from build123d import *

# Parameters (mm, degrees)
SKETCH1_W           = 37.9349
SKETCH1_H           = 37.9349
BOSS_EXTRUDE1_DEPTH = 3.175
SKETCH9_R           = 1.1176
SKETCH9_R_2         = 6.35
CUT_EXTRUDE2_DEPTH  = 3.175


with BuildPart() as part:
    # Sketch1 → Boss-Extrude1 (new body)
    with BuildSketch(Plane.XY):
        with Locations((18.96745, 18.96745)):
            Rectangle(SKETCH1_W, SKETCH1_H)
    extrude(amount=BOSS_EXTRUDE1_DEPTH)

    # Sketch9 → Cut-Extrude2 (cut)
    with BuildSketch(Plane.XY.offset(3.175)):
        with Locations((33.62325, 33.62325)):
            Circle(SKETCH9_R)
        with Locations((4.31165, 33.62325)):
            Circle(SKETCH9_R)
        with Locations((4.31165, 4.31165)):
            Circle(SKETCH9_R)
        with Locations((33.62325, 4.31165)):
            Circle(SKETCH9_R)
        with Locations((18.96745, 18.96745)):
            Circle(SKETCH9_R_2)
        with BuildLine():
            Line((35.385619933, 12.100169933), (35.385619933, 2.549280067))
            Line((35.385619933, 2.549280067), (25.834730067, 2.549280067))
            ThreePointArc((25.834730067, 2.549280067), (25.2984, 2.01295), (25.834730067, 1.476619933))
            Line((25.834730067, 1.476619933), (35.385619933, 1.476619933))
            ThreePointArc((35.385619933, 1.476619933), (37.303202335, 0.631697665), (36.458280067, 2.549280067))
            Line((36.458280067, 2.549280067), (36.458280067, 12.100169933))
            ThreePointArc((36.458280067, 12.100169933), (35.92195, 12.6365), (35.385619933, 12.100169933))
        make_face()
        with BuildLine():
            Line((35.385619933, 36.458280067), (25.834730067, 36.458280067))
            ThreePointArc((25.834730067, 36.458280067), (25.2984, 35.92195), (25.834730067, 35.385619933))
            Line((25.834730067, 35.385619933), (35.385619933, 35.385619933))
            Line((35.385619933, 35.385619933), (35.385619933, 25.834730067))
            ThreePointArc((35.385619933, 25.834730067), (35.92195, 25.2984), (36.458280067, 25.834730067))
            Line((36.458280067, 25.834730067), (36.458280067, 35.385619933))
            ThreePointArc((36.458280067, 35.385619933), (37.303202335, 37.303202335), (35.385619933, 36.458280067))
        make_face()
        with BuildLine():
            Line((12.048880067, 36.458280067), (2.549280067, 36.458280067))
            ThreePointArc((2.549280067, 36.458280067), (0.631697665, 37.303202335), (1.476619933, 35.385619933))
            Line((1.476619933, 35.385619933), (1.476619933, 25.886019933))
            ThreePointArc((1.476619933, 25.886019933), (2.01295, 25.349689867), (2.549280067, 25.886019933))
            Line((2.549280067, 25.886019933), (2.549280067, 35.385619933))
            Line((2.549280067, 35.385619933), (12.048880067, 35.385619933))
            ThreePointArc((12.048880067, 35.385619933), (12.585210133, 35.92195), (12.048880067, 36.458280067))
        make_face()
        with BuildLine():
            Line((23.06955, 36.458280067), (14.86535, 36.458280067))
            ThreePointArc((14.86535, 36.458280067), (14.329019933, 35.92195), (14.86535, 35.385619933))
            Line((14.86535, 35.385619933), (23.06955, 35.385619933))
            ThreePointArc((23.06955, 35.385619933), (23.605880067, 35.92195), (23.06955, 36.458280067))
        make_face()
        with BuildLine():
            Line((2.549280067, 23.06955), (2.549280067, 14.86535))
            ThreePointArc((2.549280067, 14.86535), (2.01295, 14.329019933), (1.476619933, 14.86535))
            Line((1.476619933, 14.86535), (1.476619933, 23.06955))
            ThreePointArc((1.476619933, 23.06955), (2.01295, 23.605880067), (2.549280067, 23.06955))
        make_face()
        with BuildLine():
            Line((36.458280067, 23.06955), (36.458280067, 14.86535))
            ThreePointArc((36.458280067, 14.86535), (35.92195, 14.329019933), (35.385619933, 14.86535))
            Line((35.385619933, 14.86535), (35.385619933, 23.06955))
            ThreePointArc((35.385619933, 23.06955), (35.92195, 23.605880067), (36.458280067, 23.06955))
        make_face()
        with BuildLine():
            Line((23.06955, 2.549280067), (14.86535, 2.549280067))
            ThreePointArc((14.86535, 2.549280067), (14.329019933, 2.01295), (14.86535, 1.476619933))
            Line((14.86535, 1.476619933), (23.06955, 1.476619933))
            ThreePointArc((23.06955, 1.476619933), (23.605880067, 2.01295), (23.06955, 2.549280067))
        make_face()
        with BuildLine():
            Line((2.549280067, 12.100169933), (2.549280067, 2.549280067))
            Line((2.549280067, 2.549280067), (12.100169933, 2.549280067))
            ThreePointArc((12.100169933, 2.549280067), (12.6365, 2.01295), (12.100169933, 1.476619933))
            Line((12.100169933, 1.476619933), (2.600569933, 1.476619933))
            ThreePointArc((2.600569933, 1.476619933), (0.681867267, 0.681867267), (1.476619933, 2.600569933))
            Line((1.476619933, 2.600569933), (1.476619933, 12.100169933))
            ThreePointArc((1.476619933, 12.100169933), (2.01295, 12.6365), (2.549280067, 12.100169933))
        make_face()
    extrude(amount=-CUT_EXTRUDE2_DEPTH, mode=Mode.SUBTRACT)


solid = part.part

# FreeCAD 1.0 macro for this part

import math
import FreeCAD as App
import Part
import Sketcher

V = App.Vector
Q = App.Units.Quantity

doc = App.newDocument("Part")
body = doc.addObject("PartDesign::Body", "Body")

sketch1 = body.newObject("Sketcher::SketchObject", "Sketch")
sketch1.AttachmentSupport = (doc.getObject("XY_Plane"), [""])
sketch1.MapMode = "FlatFace"
sketch1.addGeometry([
    Part.LineSegment(V(0, 38, 0), V(0, 0, 0)),
    Part.LineSegment(V(0, 0, 0), V(38, 0, 0)),
    Part.LineSegment(V(38, 0, 0), V(38, 38, 0)),
    Part.LineSegment(V(38, 38, 0), V(0, 38, 0)),
], False)
sketch1.addConstraint([
    Sketcher.Constraint("Coincident", 0, 2, 1, 1),
    Sketcher.Constraint("Coincident", 1, 2, 2, 1),
    Sketcher.Constraint("Coincident", 2, 2, 3, 1),
    Sketcher.Constraint("Coincident", 3, 2, 0, 1),
    Sketcher.Constraint("Vertical", 0),
    Sketcher.Constraint("Horizontal", 1),
    Sketcher.Constraint("Vertical", 2),
    Sketcher.Constraint("Horizontal", 3),
    Sketcher.Constraint("Coincident", 0, 2, -1, 1),
    Sketcher.Constraint("Equal", 3, 0),
    Sketcher.Constraint("DistanceX", 1, 1, 1, 2, Q("1.4935 in")),
])
pad1 = body.newObject("PartDesign::Pad", "Pad")
pad1.Profile = sketch1
pad1.Length = Q("0.125 in")

sketch2 = body.newObject("Sketcher::SketchObject", "Sketch001")
sketch2.AttachmentSupport = (doc.getObject("XY_Plane"), [""])
sketch2.MapMode = "FlatFace"
sketch2.AttachmentOffset = App.Placement(V(0, 0, 0.125 * 25.4), App.Rotation())
sketch2.addGeometry([
    Part.Circle(V(33.6, 33.6, 0), V(0, 0, 1), 1.1),
    Part.Circle(V(4.3, 33.6, 0), V(0, 0, 1), 1.1),
    Part.Circle(V(4.3, 4.3, 0), V(0, 0, 1), 1.1),
    Part.Circle(V(33.6, 4.3, 0), V(0, 0, 1), 1.1),
    Part.Circle(V(19, 19, 0), V(0, 0, 1), 6.3),
    Part.LineSegment(V(35.4, 12.1, 0), V(35.4, 2.5, 0)),
    Part.LineSegment(V(35.4, 2.5, 0), V(25.8, 2.5, 0)),
    Part.ArcOfCircle(Part.Circle(V(25.8, 2, 0), V(0, 0, 1), 0.5), math.radians(90), math.radians(270)),
    Part.LineSegment(V(25.8, 1.5, 0), V(35.4, 1.5, 0)),
    Part.ArcOfCircle(Part.Circle(V(36.5, 1.4, 0), V(0, 0, 1), 1.1), math.radians(177), math.radians(453)),
    Part.LineSegment(V(36.5, 2.5, 0), V(36.5, 12.1, 0)),
    Part.ArcOfCircle(Part.Circle(V(35.9, 12.1, 0), V(0, 0, 1), 0.5), math.radians(0), math.radians(180)),
    Part.LineSegment(V(35.4, 36.5, 0), V(25.8, 36.5, 0)),
    Part.ArcOfCircle(Part.Circle(V(25.8, 35.9, 0), V(0, 0, 1), 0.5), math.radians(90), math.radians(270)),
    Part.LineSegment(V(25.8, 35.4, 0), V(35.4, 35.4, 0)),
    Part.LineSegment(V(35.4, 35.4, 0), V(35.4, 25.8, 0)),
    Part.ArcOfCircle(Part.Circle(V(35.9, 25.8, 0), V(0, 0, 1), 0.5), math.radians(180), math.radians(360)),
    Part.LineSegment(V(36.5, 25.8, 0), V(36.5, 35.4, 0)),
    Part.ArcOfCircle(Part.Circle(V(36.5, 36.5, 0), V(0, 0, 1), 1.1), math.radians(-93), math.radians(183)),
    Part.LineSegment(V(12, 36.5, 0), V(2.5, 36.5, 0)),
    Part.ArcOfCircle(Part.Circle(V(1.4, 36.5, 0), V(0, 0, 1), 1.1), math.radians(-3), math.radians(273)),
    Part.LineSegment(V(1.5, 35.4, 0), V(1.5, 25.9, 0)),
    Part.ArcOfCircle(Part.Circle(V(2, 25.9, 0), V(0, 0, 1), 0.5), math.radians(-180), math.radians(0)),
    Part.LineSegment(V(2.5, 25.9, 0), V(2.5, 35.4, 0)),
    Part.LineSegment(V(2.5, 35.4, 0), V(12, 35.4, 0)),
    Part.ArcOfCircle(Part.Circle(V(12, 35.9, 0), V(0, 0, 1), 0.5), math.radians(-90), math.radians(90)),
    Part.LineSegment(V(23.1, 36.5, 0), V(14.9, 36.5, 0)),
    Part.ArcOfCircle(Part.Circle(V(14.9, 35.9, 0), V(0, 0, 1), 0.5), math.radians(90), math.radians(270)),
    Part.LineSegment(V(14.9, 35.4, 0), V(23.1, 35.4, 0)),
    Part.ArcOfCircle(Part.Circle(V(23.1, 35.9, 0), V(0, 0, 1), 0.5), math.radians(-90), math.radians(90)),
    Part.LineSegment(V(2.5, 14.9, 0), V(2.5, 23.1, 0)),
    Part.ArcOfCircle(Part.Circle(V(2, 23.1, 0), V(0, 0, 1), 0.5), math.radians(0), math.radians(180)),
    Part.LineSegment(V(1.5, 23.1, 0), V(1.5, 14.9, 0)),
    Part.ArcOfCircle(Part.Circle(V(2, 14.9, 0), V(0, 0, 1), 0.5), math.radians(180), math.radians(360)),
    Part.LineSegment(V(36.5, 14.9, 0), V(36.5, 23.1, 0)),
    Part.ArcOfCircle(Part.Circle(V(35.9, 23.1, 0), V(0, 0, 1), 0.5), math.radians(0), math.radians(180)),
    Part.LineSegment(V(35.4, 23.1, 0), V(35.4, 14.9, 0)),
    Part.ArcOfCircle(Part.Circle(V(35.9, 14.9, 0), V(0, 0, 1), 0.5), math.radians(180), math.radians(360)),
    Part.LineSegment(V(23.1, 2.5, 0), V(14.9, 2.5, 0)),
    Part.ArcOfCircle(Part.Circle(V(14.9, 2, 0), V(0, 0, 1), 0.5), math.radians(90), math.radians(270)),
    Part.LineSegment(V(14.9, 1.5, 0), V(23.1, 1.5, 0)),
    Part.ArcOfCircle(Part.Circle(V(23.1, 2, 0), V(0, 0, 1), 0.5), math.radians(-90), math.radians(90)),
    Part.LineSegment(V(2.5, 2.5, 0), V(2.5, 12.1, 0)),
    Part.ArcOfCircle(Part.Circle(V(2, 12.1, 0), V(0, 0, 1), 0.5), math.radians(0), math.radians(180)),
    Part.LineSegment(V(1.5, 12.1, 0), V(1.5, 2.6, 0)),
    Part.ArcOfCircle(Part.Circle(V(1.5, 1.5, 0), V(0, 0, 1), 1.1), math.radians(90), math.radians(360)),
    Part.LineSegment(V(2.6, 1.5, 0), V(12.1, 1.5, 0)),
    Part.ArcOfCircle(Part.Circle(V(12.1, 2, 0), V(0, 0, 1), 0.5), math.radians(-90), math.radians(90)),
    Part.LineSegment(V(12.1, 2.5, 0), V(2.5, 2.5, 0)),
], False)
sketch2.addConstraint([
    Sketcher.Constraint("Coincident", 5, 2, 6, 1),
    Sketcher.Constraint("Tangent", 6, 2, 7, 1),
    Sketcher.Constraint("Tangent", 7, 2, 8, 1),
    Sketcher.Constraint("Coincident", 8, 2, 9, 1),
    Sketcher.Constraint("Coincident", 9, 2, 10, 1),
    Sketcher.Constraint("Tangent", 10, 2, 11, 1),
    Sketcher.Constraint("Tangent", 11, 2, 5, 1),
    Sketcher.Constraint("Tangent", 12, 2, 13, 1),
    Sketcher.Constraint("Tangent", 13, 2, 14, 1),
    Sketcher.Constraint("Coincident", 14, 2, 15, 1),
    Sketcher.Constraint("Tangent", 15, 2, 16, 1),
    Sketcher.Constraint("Tangent", 16, 2, 17, 1),
    Sketcher.Constraint("Coincident", 17, 2, 18, 1),
    Sketcher.Constraint("Coincident", 18, 2, 12, 1),
    Sketcher.Constraint("Coincident", 19, 2, 20, 1),
    Sketcher.Constraint("Coincident", 20, 2, 21, 1),
    Sketcher.Constraint("Tangent", 21, 2, 22, 1),
    Sketcher.Constraint("Tangent", 22, 2, 23, 1),
    Sketcher.Constraint("Coincident", 23, 2, 24, 1),
    Sketcher.Constraint("Tangent", 24, 2, 25, 1),
    Sketcher.Constraint("Tangent", 25, 2, 19, 1),
    Sketcher.Constraint("Tangent", 26, 2, 27, 1),
    Sketcher.Constraint("Tangent", 27, 2, 28, 1),
    Sketcher.Constraint("Tangent", 28, 2, 29, 1),
    Sketcher.Constraint("Tangent", 29, 2, 26, 1),
    Sketcher.Constraint("Tangent", 30, 2, 31, 1),
    Sketcher.Constraint("Tangent", 31, 2, 32, 1),
    Sketcher.Constraint("Tangent", 32, 2, 33, 1),
    Sketcher.Constraint("Tangent", 33, 2, 30, 1),
    Sketcher.Constraint("Tangent", 34, 2, 35, 1),
    Sketcher.Constraint("Tangent", 35, 2, 36, 1),
    Sketcher.Constraint("Tangent", 36, 2, 37, 1),
    Sketcher.Constraint("Tangent", 37, 2, 34, 1),
    Sketcher.Constraint("Tangent", 38, 2, 39, 1),
    Sketcher.Constraint("Tangent", 39, 2, 40, 1),
    Sketcher.Constraint("Tangent", 40, 2, 41, 1),
    Sketcher.Constraint("Tangent", 41, 2, 38, 1),
    Sketcher.Constraint("Tangent", 42, 2, 43, 1),
    Sketcher.Constraint("Tangent", 43, 2, 44, 1),
    Sketcher.Constraint("Coincident", 44, 2, 45, 1),
    Sketcher.Constraint("Coincident", 45, 2, 46, 1),
    Sketcher.Constraint("Tangent", 46, 2, 47, 1),
    Sketcher.Constraint("Tangent", 47, 2, 48, 1),
    Sketcher.Constraint("Coincident", 48, 2, 42, 1),
    Sketcher.Constraint("Vertical", 5),
    Sketcher.Constraint("Horizontal", 6),
    Sketcher.Constraint("Horizontal", 8),
    Sketcher.Constraint("Vertical", 10),
    Sketcher.Constraint("Horizontal", 12),
    Sketcher.Constraint("Horizontal", 14),
    Sketcher.Constraint("Vertical", 15),
    Sketcher.Constraint("Vertical", 17),
    Sketcher.Constraint("Horizontal", 19),
    Sketcher.Constraint("Vertical", 21),
    Sketcher.Constraint("Vertical", 23),
    Sketcher.Constraint("Horizontal", 24),
    Sketcher.Constraint("Horizontal", 26),
    Sketcher.Constraint("Horizontal", 28),
    Sketcher.Constraint("Vertical", 30),
    Sketcher.Constraint("Vertical", 32),
    Sketcher.Constraint("Vertical", 34),
    Sketcher.Constraint("Vertical", 36),
    Sketcher.Constraint("Horizontal", 38),
    Sketcher.Constraint("Horizontal", 40),
    Sketcher.Constraint("Vertical", 42),
    Sketcher.Constraint("Vertical", 44),
    Sketcher.Constraint("Horizontal", 46),
    Sketcher.Constraint("Horizontal", 48),
    Sketcher.Constraint("Equal", 0, 1),
    Sketcher.Constraint("Equal", 1, 2),
    Sketcher.Constraint("Equal", 2, 3),
    Sketcher.Constraint("Equal", 7, 11),
    Sketcher.Constraint("Equal", 11, 13),
    Sketcher.Constraint("Equal", 13, 16),
    Sketcher.Constraint("Equal", 9, 18),
    Sketcher.Constraint("Equal", 18, 20),
    Sketcher.Constraint("Equal", 16, 22),
    Sketcher.Constraint("Equal", 22, 25),
    Sketcher.Constraint("Equal", 25, 27),
    Sketcher.Constraint("Equal", 29, 31),
    Sketcher.Constraint("Equal", 33, 35),
    Sketcher.Constraint("Equal", 37, 39),
    Sketcher.Constraint("Equal", 41, 43),
    Sketcher.Constraint("Equal", 20, 45),
    Sketcher.Constraint("Equal", 43, 47),
    Sketcher.Constraint("Horizontal", 0, 3, 1, 3),
    Sketcher.Constraint("Horizontal", 2, 3, 3, 3),
    Sketcher.Constraint("Horizontal", 18, 3, 20, 3),
    Sketcher.Constraint("Horizontal", 13, 3, 25, 3),
    Sketcher.Constraint("Horizontal", 25, 3, 27, 3),
    Sketcher.Constraint("Horizontal", 31, 3, 35, 3),
    Sketcher.Constraint("Horizontal", 33, 3, 37, 3),
    Sketcher.Constraint("Horizontal", 7, 3, 39, 3),
    Sketcher.Constraint("Horizontal", 11, 3, 43, 3),
    Sketcher.Constraint("Horizontal", 41, 3, 47, 3),
    Sketcher.Constraint("Horizontal", 45, 3, 7, 2),
    Sketcher.Constraint("Horizontal", 6, 2, 9, 2),
    Sketcher.Constraint("Horizontal", 14, 2, 17, 2),
    Sketcher.Constraint("Horizontal", 17, 2, 20, 2),
    Sketcher.Constraint("Vertical", 1, 3, 2, 3),
    Sketcher.Constraint("Vertical", 0, 3, 3, 3),
    Sketcher.Constraint("Vertical", 7, 3, 13, 3),
    Sketcher.Constraint("Vertical", 11, 3, 16, 3),
    Sketcher.Constraint("Vertical", 9, 3, 18, 3),
    Sketcher.Constraint("Vertical", 22, 3, 31, 3),
    Sketcher.Constraint("Vertical", 16, 3, 35, 3),
    Sketcher.Constraint("Vertical", 27, 3, 39, 3),
    Sketcher.Constraint("Vertical", 29, 3, 41, 3),
    Sketcher.Constraint("Vertical", 33, 3, 43, 3),
    Sketcher.Constraint("Vertical", 5, 2, 8, 2),
    Sketcher.Constraint("Vertical", 45, 3, 20, 2),
    Sketcher.Constraint("Equal", 24, 46),
    Sketcher.Constraint("Equal", 14, 48),
    Sketcher.Constraint("Equal", 48, 5),
    Sketcher.Constraint("Equal", 10, 15),
    Sketcher.Constraint("Equal", 46, 21),
    Sketcher.Constraint("Equal", 40, 30),
    Sketcher.Constraint("Diameter", 4, Q("0.5 in")),
    Sketcher.Constraint("Diameter", 0, Q("0.088 in")),
    Sketcher.Constraint("DistanceX", 19, 2, 19, 1, Q("0.374 in")),
    Sketcher.Constraint("DistanceX", 26, 2, 26, 1, Q("0.323 in")),
    Sketcher.Constraint("Radius", 7, 0.53633),
    Sketcher.Constraint("Radius", 9, 1.12395),
    Sketcher.Constraint("DistanceX", -1, 1, 0, 3, 33.62325),
    Sketcher.Constraint("DistanceY", -1, 1, 0, 3, 33.62325),
    Sketcher.Constraint("DistanceX", -1, 1, 1, 3, 4.31165),
    Sketcher.Constraint("DistanceY", -1, 1, 2, 3, 4.31165),
    Sketcher.Constraint("DistanceX", -1, 1, 4, 3, 18.96745),
    Sketcher.Constraint("DistanceY", -1, 1, 4, 3, 18.96745),
    Sketcher.Constraint("DistanceX", -1, 1, 7, 3, 25.83473),
    Sketcher.Constraint("DistanceY", -1, 1, 7, 3, 2.01295),
    Sketcher.Constraint("DistanceY", -1, 1, 13, 3, 35.92195),
    Sketcher.Constraint("DistanceX", -1, 1, 20, 3, 1.42645),
    Sketcher.Constraint("DistanceX", -1, 1, 27, 3, 14.86535),
    Sketcher.Constraint("DistanceY", -1, 1, 31, 3, 23.06955),
])
pocket1 = body.newObject("PartDesign::Pocket", "Pocket")
pocket1.Profile = sketch2
pocket1.Length = Q("0.125 in")

doc.recompute()
